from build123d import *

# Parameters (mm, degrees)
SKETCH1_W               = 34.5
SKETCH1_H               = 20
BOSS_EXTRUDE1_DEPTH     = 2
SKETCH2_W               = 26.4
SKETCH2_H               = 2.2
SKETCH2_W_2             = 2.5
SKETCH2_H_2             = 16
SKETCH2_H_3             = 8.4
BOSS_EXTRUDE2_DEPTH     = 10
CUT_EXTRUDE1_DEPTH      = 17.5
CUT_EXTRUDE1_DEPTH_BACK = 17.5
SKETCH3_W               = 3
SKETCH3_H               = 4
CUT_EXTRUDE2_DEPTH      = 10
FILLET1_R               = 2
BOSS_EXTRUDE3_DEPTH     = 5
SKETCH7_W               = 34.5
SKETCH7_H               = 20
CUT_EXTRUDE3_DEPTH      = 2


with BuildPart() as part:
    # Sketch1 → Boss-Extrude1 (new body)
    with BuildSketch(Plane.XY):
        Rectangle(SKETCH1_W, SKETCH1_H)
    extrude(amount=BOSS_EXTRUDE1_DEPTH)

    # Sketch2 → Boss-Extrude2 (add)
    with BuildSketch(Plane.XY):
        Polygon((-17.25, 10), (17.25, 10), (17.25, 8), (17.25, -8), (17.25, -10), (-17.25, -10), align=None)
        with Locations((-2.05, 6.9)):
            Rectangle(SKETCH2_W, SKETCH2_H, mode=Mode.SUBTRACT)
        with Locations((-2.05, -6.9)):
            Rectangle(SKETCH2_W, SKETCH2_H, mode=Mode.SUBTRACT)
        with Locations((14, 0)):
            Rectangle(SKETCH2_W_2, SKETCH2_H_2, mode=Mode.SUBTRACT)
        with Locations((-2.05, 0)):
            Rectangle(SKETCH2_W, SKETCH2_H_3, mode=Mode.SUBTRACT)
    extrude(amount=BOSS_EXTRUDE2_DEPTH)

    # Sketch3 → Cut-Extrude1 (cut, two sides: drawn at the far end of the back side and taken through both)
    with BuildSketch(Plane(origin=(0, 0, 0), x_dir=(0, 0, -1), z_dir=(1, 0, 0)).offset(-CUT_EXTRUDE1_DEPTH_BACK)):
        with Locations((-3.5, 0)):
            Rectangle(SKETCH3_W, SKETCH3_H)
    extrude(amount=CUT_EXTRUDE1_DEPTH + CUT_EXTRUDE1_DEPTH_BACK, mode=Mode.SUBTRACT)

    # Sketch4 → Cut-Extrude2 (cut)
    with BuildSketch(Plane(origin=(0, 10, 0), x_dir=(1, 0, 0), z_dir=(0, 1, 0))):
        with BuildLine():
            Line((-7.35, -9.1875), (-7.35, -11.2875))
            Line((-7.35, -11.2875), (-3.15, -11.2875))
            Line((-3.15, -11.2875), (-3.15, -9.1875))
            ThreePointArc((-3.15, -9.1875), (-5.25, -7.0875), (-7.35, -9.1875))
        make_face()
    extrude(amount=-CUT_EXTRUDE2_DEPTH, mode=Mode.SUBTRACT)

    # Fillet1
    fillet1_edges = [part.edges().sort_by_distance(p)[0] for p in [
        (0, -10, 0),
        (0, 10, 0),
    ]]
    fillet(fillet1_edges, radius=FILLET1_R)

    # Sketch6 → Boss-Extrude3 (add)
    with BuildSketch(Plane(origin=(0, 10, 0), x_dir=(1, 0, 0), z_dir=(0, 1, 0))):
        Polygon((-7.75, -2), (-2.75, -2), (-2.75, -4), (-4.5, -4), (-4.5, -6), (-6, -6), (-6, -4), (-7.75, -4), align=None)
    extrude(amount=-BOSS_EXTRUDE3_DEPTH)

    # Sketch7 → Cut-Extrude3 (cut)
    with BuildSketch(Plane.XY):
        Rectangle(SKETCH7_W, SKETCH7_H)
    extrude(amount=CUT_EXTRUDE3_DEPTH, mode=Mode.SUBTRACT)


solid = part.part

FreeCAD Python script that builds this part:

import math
import FreeCAD as App
import Part
import Sketcher
from FreeCAD import Vector


def edges_at(feature, points):
    """Names of the edges that pass closest to the given points."""
    edges = feature.Shape.Edges
    near = lambda p: min(range(len(edges)), key=lambda i: edges[i].distToShape(Part.Vertex(*p))[0])
    return sorted({f"Edge{near(p) + 1}" for p in points})


def add_polygon(sketch, points):
    """Adds a closed chain of lines whose ends are joined by coincident constraints."""
    first, n = sketch.GeometryCount, len(points)
    for a, b in zip(points, points[1:] + points[:1]):
        sketch.addGeometry(Part.LineSegment(App.Vector(*a, 0), App.Vector(*b, 0)), False)
    for i in range(n):
        sketch.addConstraint(Sketcher.Constraint("Coincident", first + i, 2, first + (i + 1) % n, 1))

doc = App.newDocument("Part")
body = doc.addObject("PartDesign::Body", "Body")

# Sketch on XY plane
sketch1 = body.newObject("Sketcher::SketchObject", "Sketch")
sketch1.AttachmentSupport = (doc.getObject("XY_Plane"), [""])
sketch1.MapMode = "FlatFace"
add_polygon(sketch1, [(-17, 10), (-17, -10), (17, -10), (17, 10)])  # lines 0-3
sketch1.addConstraint([
    Sketcher.Constraint("Vertical", 0),
    Sketcher.Constraint("Horizontal", 1),
    Sketcher.Constraint("Vertical", 2),
    Sketcher.Constraint("Horizontal", 3),
    Sketcher.Constraint("Symmetric", 0, 2, 2, 2, -1, 1),
    Sketcher.Constraint("DistanceY", 0, 2, 0, 1, 20.0),
    Sketcher.Constraint("DistanceX", 1, 1, 1, 2, 34.5),
])
pad1 = body.newObject("PartDesign::Pad", "Pad")
pad1.Profile = sketch1
pad1.Length = 2

# Sketch on XY plane
sketch2 = body.newObject("Sketcher::SketchObject", "Sketch001")
sketch2.AttachmentSupport = (doc.getObject("XY_Plane"), [""])
sketch2.MapMode = "FlatFace"
add_polygon(sketch2, [(17.2, 10), (-17.2, 10), (-17.2, -10), (17.2, -10)])  # lines 0-3
add_polygon(sketch2, [(-15.2, -8), (-15.2, -5.8), (11.2, -5.8), (11.2, -8)])  # lines 4-7
add_polygon(sketch2, [(12.8, -8), (12.8, 8), (15.2, 8), (15.2, -8)])  # lines 8-11
add_polygon(sketch2, [(-15.2, -4.2), (-15.2, 4.2), (11.2, 4.2), (11.2, -4.2)])  # lines 12-15
add_polygon(sketch2, [(-15.2, 5.8), (-15.2, 8), (11.2, 8), (11.2, 5.8)])  # lines 16-19
sketch2.addConstraint([
    Sketcher.Constraint("Horizontal", 0),
    Sketcher.Constraint("Vertical", 1),
    Sketcher.Constraint("Horizontal", 2),
    Sketcher.Constraint("Vertical", 3),
    Sketcher.Constraint("Vertical", 4),
    Sketcher.Constraint("Horizontal", 5),
    Sketcher.Constraint("Vertical", 6),
    Sketcher.Constraint("Horizontal", 7),
    Sketcher.Constraint("Vertical", 8),
    Sketcher.Constraint("Horizontal", 9),
    Sketcher.Constraint("Vertical", 10),
    Sketcher.Constraint("Horizontal", 11),
    Sketcher.Constraint("Vertical", 12),
    Sketcher.Constraint("Horizontal", 13),
    Sketcher.Constraint("Vertical", 14),
    Sketcher.Constraint("Horizontal", 15),
    Sketcher.Constraint("Vertical", 16),
    Sketcher.Constraint("Horizontal", 17),
    Sketcher.Constraint("Vertical", 18),
    Sketcher.Constraint("Horizontal", 19),
    Sketcher.Constraint("Symmetric", 0, 2, 2, 2, -1, 1),
    Sketcher.Constraint("Symmetric", 7, 2, 9, 2, -1, 1),
    Sketcher.Constraint("Symmetric", 10, 2, 16, 2, -1, 1),
    Sketcher.Constraint("Symmetric", 6, 2, 17, 2, -1),
    Sketcher.Constraint("Vertical", 7, 2, 12, 2),
    Sketcher.Constraint("Vertical", 6, 2, 13, 2),
    Sketcher.Constraint("Equal", 6, 16),
    Sketcher.Constraint("DistanceY", 1, 2, 1, 1, 20.0),
    Sketcher.Constraint("DistanceY", 8, 1, 8, 2, 16.0),
    Sketcher.Constraint("DistanceX", 0, 2, 0, 1, 34.5),
    Sketcher.Constraint("DistanceX", 5, 1, 5, 2, 26.4),
    Sketcher.Constraint("DistanceX", 9, 1, 9, 2, 2.5),
    Sketcher.Constraint("DistanceY", 4, 1, 4, 2, 2.2),
    Sketcher.Constraint("DistanceY", 12, 1, 12, 2, 8.4),
    Sketcher.Constraint("DistanceX", 1, 2, 4, 2, 2.0),
    Sketcher.Constraint("DistanceY", 4, 2, 12, 2, 10.0),
])
pad2 = body.newObject("PartDesign::Pad", "Pad001")
pad2.Profile = sketch2
pad2.Length = 10

# Sketch on YZ plane
sketch3 = body.newObject("Sketcher::SketchObject", "Sketch002")
sketch3.AttachmentSupport = (doc.getObject("YZ_Plane"), [""])
sketch3.MapMode = "FlatFace"
add_polygon(sketch3, [(2, 5), (-2, 5), (-2, 2), (2, 2)])  # lines 0-3
sketch3.addConstraint([
    Sketcher.Constraint("Horizontal", 0),
    Sketcher.Constraint("Vertical", 1),
    Sketcher.Constraint("Horizontal", 2),
    Sketcher.Constraint("Vertical", 3),
    Sketcher.Constraint("DistanceX", 0, 2, 0, 1, 4.0),
    Sketcher.Constraint("DistanceY", 1, 2, 1, 1, 3.0),
    Sketcher.Constraint("DistanceX", 0, 2, -1, 1, 2.0),
    Sketcher.Constraint("DistanceY", -1, 1, 0, 2, 5.0),
])
pocket1 = body.newObject("PartDesign::Pocket", "Pocket")
pocket1.Profile = sketch3
pocket1.Type = "ThroughAll"
pocket1.Midplane = True

# Sketch on XZ plane
sketch4 = body.newObject("Sketcher::SketchObject", "Sketch003")
sketch4.AttachmentSupport = (doc.getObject("XZ_Plane"), [""])
sketch4.MapMode = "FlatFace"
sketch4.AttachmentOffset = App.Placement(Vector(0, 0, -10), App.Rotation())
sketch4.addGeometry([
    Part.LineSegment(Vector(-7.3, 9.2, 0), Vector(-7.3, 11.3, 0)),
    Part.LineSegment(Vector(-7.3, 11.3, 0), Vector(-3.1, 11.3, 0)),
    Part.LineSegment(Vector(-3.1, 11.3, 0), Vector(-3.1, 9.2, 0)),
    Part.ArcOfCircle(Part.Circle(Vector(-5.2, 9.2, 0), Vector(0, 0, 1), 2.1), math.radians(180), math.radians(360)),
], False)
sketch4.addConstraint([
    Sketcher.Constraint("Coincident", 0, 2, 1, 1),
    Sketcher.Constraint("Coincident", 1, 2, 2, 1),
    Sketcher.Constraint("Tangent", 2, 2, 3, 2),
    Sketcher.Constraint("Tangent", 3, 1, 0, 1),
    Sketcher.Constraint("Vertical", 0),
    Sketcher.Constraint("Horizontal", 1),
    Sketcher.Constraint("Vertical", 2),
    Sketcher.Constraint("Radius", 3, 2.1),
    Sketcher.Constraint("DistanceY", 0, 1, 0, 2, 2.1),
    Sketcher.Constraint("DistanceX", 3, 3, -1, 1, 5.25),
    Sketcher.Constraint("DistanceY", -1, 1, 3, 3, 9.1875),
])
pocket2 = body.newObject("PartDesign::Pocket", "Pocket001")
pocket2.Profile = sketch4
pocket2.Length = 10
pocket2.Reversed = True
doc.recompute()

fillet = body.newObject("PartDesign::Fillet", "Fillet")
fillet.Base = (pocket2, edges_at(pocket2, [(0, -10, 0), (0, 10, 0)]))
fillet.Radius = 2

# Sketch on XZ plane
sketch5 = body.newObject("Sketcher::SketchObject", "Sketch004")
sketch5.AttachmentSupport = (doc.getObject("XZ_Plane"), [""])
sketch5.MapMode = "FlatFace"
sketch5.AttachmentOffset = App.Placement(Vector(0, 0, -10), App.Rotation())
add_polygon(sketch5, [(-2.8, 2), (-7.8, 2), (-7.8, 4), (-6, 4), (-6, 6), (-4.5, 6), (-4.5, 4), (-2.8, 4)])  # lines 0-7
sketch5.addConstraint([
    Sketcher.Constraint("Horizontal", 0),
    Sketcher.Constraint("Vertical", 1),
    Sketcher.Constraint("Horizontal", 2),
    Sketcher.Constraint("Vertical", 3),
    Sketcher.Constraint("Horizontal", 4),
    Sketcher.Constraint("Vertical", 5),
    Sketcher.Constraint("Horizontal", 6),
    Sketcher.Constraint("Vertical", 7),
    Sketcher.Constraint("Horizontal", 2, 2, 5, 2),
    Sketcher.Constraint("Equal", 2, 6),
    Sketcher.Constraint("Equal", 1, 3),
    Sketcher.Constraint("DistanceX", 0, 2, 0, 1, 5.0),
    Sketcher.Constraint("DistanceY", 1, 1, 1, 2, 2.0),
    Sketcher.Constraint("DistanceX", 4, 1, 4, 2, 1.5),
    Sketcher.Constraint("DistanceY", -1, 1, 0, 2, 2.0),
    Sketcher.Constraint("DistanceX", 2, 2, -1, 1, 6.0),
])
pad3 = body.newObject("PartDesign::Pad", "Pad002")
pad3.Profile = sketch5
pad3.Length = 5

# Sketch on XY plane
sketch6 = body.newObject("Sketcher::SketchObject", "Sketch005")
sketch6.AttachmentSupport = (doc.getObject("XY_Plane"), [""])
sketch6.MapMode = "FlatFace"
add_polygon(sketch6, [(-17, 10), (-17, -10), (17, -10), (17, 10)])  # lines 0-3
sketch6.addConstraint([
    Sketcher.Constraint("Vertical", 0),
    Sketcher.Constraint("Horizontal", 1),
    Sketcher.Constraint("Vertical", 2),
    Sketcher.Constraint("Horizontal", 3),
    Sketcher.Constraint("Symmetric", 0, 2, 2, 2, -1, 1),
    Sketcher.Constraint("DistanceY", 0, 2, 0, 1, 20.0),
    Sketcher.Constraint("DistanceX", 1, 1, 1, 2, 34.5),
])
pocket3 = body.newObject("PartDesign::Pocket", "Pocket002")
pocket3.Profile = sketch6
pocket3.Length = 2
pocket3.Reversed = True

doc.recompute()
